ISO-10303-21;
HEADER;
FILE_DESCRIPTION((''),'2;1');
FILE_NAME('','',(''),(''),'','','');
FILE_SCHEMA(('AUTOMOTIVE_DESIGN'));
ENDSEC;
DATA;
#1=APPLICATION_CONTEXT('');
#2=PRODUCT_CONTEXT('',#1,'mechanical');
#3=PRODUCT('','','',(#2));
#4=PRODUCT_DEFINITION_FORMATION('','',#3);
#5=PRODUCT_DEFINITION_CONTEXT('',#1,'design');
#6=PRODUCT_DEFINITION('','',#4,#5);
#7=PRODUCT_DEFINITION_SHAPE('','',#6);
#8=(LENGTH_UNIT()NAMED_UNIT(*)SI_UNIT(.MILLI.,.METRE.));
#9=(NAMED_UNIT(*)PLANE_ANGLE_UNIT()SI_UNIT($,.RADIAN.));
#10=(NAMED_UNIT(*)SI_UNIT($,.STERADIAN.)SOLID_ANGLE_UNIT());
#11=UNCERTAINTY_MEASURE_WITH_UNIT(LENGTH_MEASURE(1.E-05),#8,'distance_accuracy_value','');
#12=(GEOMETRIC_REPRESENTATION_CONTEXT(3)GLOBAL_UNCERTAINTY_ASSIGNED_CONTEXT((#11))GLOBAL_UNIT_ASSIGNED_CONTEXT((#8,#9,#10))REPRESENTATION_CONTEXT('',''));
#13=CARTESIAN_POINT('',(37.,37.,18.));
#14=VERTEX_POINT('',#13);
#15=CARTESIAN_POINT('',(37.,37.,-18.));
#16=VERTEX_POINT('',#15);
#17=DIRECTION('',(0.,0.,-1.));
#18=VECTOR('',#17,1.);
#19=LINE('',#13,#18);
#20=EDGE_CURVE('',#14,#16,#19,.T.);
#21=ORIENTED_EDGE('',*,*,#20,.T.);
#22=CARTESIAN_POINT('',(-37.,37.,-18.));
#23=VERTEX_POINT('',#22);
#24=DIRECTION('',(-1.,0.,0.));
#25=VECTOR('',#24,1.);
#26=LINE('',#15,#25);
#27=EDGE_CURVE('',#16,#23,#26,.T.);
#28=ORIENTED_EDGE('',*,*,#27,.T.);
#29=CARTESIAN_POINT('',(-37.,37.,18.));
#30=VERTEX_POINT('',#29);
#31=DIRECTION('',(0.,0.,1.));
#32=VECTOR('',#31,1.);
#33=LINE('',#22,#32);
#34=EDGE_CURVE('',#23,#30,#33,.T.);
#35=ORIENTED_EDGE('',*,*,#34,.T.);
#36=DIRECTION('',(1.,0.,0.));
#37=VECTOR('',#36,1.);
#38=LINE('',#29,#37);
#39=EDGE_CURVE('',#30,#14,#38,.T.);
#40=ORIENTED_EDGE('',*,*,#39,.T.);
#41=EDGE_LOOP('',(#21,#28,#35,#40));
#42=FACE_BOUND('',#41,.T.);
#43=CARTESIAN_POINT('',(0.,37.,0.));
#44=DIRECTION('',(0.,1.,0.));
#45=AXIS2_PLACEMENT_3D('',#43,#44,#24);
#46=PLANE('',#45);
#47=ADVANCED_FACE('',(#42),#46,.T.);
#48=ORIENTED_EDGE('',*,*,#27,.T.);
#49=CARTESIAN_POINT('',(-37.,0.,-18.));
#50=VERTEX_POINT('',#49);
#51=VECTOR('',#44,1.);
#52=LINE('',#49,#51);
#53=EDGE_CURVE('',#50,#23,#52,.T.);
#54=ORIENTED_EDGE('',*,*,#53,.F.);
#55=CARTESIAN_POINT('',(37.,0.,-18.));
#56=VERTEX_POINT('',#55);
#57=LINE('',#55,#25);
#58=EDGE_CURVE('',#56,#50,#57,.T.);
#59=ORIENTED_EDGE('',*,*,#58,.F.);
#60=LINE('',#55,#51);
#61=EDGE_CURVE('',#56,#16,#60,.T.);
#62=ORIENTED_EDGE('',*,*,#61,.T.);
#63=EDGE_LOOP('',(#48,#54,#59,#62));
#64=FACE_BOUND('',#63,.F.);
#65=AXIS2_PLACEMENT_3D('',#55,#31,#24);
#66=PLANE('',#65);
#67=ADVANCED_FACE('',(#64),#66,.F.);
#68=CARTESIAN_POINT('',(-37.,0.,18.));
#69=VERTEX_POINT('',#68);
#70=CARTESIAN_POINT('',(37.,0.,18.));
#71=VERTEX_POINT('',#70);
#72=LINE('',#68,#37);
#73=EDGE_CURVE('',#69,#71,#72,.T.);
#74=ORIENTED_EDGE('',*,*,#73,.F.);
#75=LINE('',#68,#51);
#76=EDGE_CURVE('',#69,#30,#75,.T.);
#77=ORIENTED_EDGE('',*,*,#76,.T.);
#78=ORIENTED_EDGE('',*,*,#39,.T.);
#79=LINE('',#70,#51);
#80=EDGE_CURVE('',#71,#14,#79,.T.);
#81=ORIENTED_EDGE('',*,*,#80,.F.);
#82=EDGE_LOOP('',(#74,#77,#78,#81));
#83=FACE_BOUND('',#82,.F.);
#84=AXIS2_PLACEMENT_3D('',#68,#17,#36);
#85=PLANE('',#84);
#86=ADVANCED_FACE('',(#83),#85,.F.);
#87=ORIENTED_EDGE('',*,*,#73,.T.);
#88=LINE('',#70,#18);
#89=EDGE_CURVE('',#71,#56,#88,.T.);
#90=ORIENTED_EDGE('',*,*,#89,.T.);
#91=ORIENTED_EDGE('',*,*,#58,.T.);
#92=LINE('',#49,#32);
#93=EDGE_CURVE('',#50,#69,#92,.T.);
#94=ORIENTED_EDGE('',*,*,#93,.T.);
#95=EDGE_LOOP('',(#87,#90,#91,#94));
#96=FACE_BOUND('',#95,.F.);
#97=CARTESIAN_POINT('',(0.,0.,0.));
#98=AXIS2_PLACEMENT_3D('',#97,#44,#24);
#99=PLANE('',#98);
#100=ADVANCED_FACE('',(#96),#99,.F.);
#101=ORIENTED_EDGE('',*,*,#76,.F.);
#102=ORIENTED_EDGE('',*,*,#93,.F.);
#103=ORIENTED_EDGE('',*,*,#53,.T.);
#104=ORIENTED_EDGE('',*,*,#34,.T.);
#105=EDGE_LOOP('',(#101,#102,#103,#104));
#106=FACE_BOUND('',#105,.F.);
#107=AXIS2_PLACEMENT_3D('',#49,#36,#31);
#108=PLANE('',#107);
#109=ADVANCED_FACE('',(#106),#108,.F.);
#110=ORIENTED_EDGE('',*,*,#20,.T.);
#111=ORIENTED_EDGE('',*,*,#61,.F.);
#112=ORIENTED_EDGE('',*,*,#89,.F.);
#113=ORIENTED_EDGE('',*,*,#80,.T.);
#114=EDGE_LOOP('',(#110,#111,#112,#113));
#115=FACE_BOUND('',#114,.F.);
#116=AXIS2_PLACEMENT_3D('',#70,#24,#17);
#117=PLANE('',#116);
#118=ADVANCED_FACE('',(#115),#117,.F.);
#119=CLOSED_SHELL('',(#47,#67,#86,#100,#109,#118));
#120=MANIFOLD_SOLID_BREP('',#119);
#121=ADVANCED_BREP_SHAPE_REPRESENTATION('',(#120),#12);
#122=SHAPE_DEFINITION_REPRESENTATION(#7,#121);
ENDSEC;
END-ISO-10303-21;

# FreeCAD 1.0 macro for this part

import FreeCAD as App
import Part
import Sketcher
Q = App.Units.Quantity


def add_polygon(sketch, points):
    """Adds a closed chain of lines whose ends are joined by coincident constraints."""
    first, n = sketch.GeometryCount, len(points)
    for a, b in zip(points, points[1:] + points[:1]):
        sketch.addGeometry(Part.LineSegment(App.Vector(*a, 0), App.Vector(*b, 0)), False)
    for i in range(n):
        sketch.addConstraint(Sketcher.Constraint("Coincident", first + i, 2, first + (i + 1) % n, 1))

doc = App.newDocument("Part")
body = doc.addObject("PartDesign::Body", "Body")

sketch1 = body.newObject("Sketcher::SketchObject", "Sketch")
sketch1.AttachmentSupport = (doc.getObject("XZ_Plane"), [""])
sketch1.MapMode = "FlatFace"
add_polygon(sketch1, [(-37, -18), (-37, 18), (37, 18), (37, -18)])
sketch1.addConstraint([
    Sketcher.Constraint("Vertical", 0),
    Sketcher.Constraint("Horizontal", 1),
    Sketcher.Constraint("Vertical", 2),
    Sketcher.Constraint("Horizontal", 3),
    Sketcher.Constraint("Symmetric", 0, 2, 2, 2, -1, 1),
    Sketcher.Constraint("DistanceX", 1, 1, 1, 2, Q("74 mm")),
    Sketcher.Constraint("DistanceY", 0, 1, 0, 2, Q("36 mm")),
])
pad1 = body.newObject("PartDesign::Pad", "Pad")
pad1.Profile = sketch1
pad1.Length = 37
pad1.Reversed = True

doc.recompute()
